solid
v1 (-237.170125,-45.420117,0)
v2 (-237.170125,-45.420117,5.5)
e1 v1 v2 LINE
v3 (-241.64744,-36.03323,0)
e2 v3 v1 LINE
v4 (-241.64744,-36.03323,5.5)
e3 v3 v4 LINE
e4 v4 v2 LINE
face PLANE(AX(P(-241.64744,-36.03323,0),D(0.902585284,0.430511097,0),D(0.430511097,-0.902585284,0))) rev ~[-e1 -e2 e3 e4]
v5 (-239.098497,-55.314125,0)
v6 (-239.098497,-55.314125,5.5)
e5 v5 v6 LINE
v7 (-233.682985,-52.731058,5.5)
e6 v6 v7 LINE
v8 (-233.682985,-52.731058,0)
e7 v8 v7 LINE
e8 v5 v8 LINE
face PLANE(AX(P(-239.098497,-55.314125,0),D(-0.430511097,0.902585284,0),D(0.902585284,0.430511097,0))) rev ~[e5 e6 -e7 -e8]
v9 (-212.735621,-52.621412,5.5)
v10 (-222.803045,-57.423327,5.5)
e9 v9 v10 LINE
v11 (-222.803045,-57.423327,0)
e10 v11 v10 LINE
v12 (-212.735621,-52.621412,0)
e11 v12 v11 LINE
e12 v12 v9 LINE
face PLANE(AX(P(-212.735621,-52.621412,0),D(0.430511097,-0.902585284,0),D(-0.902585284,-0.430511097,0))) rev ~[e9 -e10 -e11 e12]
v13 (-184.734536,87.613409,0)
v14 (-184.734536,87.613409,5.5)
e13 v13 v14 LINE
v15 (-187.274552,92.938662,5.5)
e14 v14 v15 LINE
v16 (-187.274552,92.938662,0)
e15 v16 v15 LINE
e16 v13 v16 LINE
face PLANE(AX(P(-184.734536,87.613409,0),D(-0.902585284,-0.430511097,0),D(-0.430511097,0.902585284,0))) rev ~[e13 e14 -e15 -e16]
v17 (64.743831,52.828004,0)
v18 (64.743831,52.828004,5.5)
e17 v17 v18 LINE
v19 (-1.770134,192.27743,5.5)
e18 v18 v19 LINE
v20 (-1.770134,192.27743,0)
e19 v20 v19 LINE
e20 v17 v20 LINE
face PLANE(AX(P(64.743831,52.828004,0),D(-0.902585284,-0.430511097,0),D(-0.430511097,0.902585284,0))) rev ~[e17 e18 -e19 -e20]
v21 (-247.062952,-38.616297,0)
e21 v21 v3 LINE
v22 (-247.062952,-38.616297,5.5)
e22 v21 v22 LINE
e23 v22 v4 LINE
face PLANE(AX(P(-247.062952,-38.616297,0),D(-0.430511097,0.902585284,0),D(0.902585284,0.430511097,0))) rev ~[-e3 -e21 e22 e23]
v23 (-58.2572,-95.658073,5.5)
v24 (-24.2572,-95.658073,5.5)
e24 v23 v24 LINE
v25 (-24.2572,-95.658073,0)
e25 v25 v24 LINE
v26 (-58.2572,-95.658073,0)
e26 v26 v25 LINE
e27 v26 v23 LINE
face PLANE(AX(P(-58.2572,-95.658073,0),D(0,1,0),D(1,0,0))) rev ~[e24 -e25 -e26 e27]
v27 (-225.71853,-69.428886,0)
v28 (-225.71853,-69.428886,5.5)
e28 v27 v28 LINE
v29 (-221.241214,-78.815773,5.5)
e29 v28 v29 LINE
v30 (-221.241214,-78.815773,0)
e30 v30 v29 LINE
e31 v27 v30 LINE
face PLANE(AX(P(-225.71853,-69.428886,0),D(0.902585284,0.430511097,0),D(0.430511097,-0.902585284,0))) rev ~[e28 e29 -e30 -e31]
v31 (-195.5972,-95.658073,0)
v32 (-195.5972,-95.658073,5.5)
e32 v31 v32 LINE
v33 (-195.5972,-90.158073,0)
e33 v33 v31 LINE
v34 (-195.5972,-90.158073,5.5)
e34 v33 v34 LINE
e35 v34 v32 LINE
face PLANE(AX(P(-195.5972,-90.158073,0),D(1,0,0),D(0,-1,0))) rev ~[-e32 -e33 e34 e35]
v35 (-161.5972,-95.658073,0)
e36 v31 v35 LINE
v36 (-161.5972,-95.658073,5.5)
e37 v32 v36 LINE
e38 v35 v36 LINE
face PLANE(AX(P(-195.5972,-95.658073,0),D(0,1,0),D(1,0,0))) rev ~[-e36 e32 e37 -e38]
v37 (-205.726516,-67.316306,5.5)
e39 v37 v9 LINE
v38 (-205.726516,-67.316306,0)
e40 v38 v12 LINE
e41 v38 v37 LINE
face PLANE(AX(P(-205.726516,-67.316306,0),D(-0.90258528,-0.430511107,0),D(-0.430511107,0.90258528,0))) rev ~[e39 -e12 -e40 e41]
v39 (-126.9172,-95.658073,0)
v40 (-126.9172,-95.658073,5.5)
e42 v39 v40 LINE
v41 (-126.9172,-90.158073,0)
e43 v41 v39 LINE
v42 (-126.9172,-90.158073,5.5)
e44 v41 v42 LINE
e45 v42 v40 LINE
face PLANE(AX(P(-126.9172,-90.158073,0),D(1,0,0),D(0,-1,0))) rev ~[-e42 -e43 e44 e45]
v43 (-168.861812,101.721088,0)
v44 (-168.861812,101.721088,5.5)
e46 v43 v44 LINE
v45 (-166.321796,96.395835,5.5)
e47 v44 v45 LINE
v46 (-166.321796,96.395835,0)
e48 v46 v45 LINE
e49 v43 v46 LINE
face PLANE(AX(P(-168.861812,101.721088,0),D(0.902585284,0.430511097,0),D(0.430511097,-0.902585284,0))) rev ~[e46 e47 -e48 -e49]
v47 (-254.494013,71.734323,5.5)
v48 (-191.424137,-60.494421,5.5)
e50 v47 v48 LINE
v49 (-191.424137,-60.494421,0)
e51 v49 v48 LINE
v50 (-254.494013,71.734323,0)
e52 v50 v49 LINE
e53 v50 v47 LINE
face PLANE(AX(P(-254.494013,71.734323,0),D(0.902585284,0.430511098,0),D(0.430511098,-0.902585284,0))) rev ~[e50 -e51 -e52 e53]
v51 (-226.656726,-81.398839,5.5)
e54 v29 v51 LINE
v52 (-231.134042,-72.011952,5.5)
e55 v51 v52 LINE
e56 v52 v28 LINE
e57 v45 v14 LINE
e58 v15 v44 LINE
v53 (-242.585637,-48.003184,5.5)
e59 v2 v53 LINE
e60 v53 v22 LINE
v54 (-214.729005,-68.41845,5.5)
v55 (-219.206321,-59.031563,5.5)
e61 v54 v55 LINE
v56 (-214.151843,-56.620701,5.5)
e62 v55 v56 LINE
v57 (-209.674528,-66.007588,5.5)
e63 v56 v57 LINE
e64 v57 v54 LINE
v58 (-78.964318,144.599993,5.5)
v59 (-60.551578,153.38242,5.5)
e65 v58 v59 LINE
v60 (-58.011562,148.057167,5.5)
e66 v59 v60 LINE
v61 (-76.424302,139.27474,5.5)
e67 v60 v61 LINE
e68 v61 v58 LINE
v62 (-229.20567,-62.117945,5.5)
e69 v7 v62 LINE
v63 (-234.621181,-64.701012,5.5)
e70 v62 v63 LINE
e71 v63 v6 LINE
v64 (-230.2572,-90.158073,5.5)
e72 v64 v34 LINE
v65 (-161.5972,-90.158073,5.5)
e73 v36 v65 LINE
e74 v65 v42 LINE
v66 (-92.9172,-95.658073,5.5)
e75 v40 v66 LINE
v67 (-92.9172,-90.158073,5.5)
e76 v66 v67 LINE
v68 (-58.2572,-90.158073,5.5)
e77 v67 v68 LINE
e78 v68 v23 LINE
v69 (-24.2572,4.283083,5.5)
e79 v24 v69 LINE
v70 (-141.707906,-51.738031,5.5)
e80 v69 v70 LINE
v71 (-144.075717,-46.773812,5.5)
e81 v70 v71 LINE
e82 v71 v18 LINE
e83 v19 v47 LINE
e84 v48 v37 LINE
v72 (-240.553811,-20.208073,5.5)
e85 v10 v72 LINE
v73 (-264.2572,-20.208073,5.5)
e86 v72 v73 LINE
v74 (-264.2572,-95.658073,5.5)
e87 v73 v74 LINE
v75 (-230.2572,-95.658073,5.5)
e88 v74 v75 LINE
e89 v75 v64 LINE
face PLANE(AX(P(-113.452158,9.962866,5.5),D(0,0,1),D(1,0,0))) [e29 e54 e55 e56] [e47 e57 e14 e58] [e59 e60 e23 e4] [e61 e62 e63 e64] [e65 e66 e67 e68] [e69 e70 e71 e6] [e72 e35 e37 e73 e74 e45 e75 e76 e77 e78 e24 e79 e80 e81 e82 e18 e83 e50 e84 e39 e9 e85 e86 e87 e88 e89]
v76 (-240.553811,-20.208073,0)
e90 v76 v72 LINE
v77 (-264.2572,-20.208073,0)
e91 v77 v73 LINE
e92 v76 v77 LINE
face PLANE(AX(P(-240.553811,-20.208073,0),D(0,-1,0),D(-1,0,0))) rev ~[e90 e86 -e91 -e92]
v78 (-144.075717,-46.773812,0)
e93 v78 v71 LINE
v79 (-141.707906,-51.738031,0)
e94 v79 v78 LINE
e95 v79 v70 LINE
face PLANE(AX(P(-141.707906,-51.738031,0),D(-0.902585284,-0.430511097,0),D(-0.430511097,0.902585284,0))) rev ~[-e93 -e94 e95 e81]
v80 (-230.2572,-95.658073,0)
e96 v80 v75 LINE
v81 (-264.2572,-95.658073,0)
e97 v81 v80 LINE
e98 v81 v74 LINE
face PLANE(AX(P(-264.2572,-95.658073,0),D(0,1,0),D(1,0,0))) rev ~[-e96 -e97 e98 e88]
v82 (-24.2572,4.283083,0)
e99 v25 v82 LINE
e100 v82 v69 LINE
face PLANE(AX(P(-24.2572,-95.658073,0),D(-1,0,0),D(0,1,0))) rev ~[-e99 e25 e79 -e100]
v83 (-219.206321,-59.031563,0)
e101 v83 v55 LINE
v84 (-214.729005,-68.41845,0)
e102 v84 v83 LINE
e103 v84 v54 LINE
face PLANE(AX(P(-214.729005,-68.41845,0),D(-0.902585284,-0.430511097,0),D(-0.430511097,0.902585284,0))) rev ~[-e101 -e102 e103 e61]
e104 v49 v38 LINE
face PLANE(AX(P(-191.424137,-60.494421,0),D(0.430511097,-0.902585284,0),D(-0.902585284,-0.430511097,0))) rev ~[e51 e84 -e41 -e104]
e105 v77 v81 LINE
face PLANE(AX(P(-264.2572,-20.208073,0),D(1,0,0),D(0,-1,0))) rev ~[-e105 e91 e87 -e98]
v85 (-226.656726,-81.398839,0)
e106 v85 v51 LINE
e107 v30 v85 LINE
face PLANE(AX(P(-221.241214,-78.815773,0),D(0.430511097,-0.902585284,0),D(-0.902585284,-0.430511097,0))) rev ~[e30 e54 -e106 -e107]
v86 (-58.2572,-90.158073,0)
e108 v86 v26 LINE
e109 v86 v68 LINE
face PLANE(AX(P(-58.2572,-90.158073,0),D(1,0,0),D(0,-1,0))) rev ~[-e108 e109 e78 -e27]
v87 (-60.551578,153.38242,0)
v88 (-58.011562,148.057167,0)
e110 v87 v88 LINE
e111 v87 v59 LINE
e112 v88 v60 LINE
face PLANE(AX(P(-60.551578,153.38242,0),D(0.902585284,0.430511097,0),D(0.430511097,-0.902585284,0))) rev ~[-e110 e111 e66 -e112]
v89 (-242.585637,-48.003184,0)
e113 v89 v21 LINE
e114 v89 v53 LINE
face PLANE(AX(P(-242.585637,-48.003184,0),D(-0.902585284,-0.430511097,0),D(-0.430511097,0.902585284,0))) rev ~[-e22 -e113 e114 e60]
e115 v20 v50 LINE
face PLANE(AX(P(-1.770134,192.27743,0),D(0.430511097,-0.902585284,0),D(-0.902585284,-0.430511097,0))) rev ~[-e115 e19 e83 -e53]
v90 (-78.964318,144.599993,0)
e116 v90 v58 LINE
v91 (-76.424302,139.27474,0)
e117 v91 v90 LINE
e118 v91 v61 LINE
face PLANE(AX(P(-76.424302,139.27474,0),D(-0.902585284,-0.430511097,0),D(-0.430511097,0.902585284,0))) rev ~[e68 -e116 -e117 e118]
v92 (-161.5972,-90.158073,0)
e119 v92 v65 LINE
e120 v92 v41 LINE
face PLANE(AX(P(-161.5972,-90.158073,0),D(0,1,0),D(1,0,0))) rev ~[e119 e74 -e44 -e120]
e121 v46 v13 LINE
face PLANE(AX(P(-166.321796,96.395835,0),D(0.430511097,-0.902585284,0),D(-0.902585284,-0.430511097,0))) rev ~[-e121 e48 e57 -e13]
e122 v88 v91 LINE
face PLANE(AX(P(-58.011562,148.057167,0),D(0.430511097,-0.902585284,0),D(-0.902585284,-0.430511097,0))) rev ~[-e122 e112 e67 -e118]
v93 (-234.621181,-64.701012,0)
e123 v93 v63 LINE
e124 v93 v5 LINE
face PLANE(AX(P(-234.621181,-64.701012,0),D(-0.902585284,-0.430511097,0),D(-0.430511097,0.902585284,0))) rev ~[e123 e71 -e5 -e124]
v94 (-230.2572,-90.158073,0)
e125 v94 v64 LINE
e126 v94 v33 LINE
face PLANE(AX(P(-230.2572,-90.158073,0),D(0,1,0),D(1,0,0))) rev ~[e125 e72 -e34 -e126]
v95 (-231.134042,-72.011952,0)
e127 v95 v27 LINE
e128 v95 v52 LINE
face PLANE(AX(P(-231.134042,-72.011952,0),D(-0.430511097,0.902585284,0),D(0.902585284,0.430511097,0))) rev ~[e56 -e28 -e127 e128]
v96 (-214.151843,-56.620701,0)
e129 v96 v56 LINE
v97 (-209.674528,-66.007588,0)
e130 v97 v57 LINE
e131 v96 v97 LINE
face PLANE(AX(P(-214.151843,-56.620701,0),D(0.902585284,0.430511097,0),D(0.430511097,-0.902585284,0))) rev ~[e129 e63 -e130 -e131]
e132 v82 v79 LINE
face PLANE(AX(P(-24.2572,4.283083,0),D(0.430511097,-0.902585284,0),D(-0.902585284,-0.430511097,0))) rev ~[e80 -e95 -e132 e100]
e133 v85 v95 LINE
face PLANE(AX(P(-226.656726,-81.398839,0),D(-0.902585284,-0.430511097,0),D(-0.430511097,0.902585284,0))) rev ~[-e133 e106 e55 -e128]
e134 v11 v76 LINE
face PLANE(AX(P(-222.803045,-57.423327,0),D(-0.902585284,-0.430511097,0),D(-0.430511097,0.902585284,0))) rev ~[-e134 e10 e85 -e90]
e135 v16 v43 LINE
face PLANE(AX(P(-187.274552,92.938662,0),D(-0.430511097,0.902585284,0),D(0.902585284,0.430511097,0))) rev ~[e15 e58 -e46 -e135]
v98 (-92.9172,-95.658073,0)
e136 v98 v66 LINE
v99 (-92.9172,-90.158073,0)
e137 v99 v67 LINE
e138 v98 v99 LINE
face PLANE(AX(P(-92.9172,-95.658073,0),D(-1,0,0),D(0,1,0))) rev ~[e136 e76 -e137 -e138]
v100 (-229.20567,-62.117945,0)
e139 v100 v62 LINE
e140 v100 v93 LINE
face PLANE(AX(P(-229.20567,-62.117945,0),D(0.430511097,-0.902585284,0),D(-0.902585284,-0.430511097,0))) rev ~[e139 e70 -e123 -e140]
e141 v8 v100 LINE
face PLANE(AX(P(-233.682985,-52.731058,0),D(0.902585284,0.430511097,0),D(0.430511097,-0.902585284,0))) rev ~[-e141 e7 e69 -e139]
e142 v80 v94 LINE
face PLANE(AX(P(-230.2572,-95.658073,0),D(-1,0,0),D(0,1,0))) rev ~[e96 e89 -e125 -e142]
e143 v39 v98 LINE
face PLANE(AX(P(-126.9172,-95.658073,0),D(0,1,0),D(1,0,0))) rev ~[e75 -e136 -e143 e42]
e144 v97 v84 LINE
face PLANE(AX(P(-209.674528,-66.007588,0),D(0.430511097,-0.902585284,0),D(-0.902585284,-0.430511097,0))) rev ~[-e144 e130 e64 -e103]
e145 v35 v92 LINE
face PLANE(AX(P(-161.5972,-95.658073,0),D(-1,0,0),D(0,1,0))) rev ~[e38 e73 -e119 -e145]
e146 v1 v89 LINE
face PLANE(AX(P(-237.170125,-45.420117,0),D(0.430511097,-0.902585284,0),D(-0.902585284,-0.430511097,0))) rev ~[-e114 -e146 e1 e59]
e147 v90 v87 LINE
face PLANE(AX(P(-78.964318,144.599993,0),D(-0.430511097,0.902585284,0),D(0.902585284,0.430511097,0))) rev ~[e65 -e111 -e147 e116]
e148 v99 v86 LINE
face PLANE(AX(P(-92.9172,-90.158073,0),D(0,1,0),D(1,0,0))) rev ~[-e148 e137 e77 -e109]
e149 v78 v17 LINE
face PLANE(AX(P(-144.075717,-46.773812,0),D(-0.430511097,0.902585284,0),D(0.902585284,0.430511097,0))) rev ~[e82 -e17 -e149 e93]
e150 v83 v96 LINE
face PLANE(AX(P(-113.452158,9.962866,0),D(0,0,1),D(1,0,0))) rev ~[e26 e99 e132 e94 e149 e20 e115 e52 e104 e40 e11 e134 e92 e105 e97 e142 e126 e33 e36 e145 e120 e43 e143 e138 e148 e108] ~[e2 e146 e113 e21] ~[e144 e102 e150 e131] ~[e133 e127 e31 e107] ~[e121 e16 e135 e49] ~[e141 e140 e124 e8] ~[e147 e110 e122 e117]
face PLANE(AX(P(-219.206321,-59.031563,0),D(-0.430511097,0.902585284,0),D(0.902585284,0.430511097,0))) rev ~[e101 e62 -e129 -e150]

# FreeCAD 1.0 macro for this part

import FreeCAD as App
import Part
import Sketcher
Q = App.Units.Quantity


def add_polygon(sketch, points):
    """Adds a closed chain of lines whose ends are joined by coincident constraints."""
    first, n = sketch.GeometryCount, len(points)
    for a, b in zip(points, points[1:] + points[:1]):
        sketch.addGeometry(Part.LineSegment(App.Vector(*a, 0), App.Vector(*b, 0)), False)
    for i in range(n):
        sketch.addConstraint(Sketcher.Constraint("Coincident", first + i, 2, first + (i + 1) % n, 1))

doc = App.newDocument("Part")
body = doc.addObject("PartDesign::Body", "Body")

# Sketch on XY plane
sketch1 = body.newObject("Sketcher::SketchObject", "Sketch")
sketch1.AttachmentSupport = (doc.getObject("XY_Plane"), [""])
sketch1.MapMode = "FlatFace"
add_polygon(sketch1, [(-264.2572, -95.658073), (-230.2572, -95.658073), (-230.2572, -90.158073), (-195.5972, -90.158073), (-195.5972, -95.658073), (-161.5972, -95.658073), (-161.5972, -90.158073), (-126.9172, -90.158073), (-126.9172, -95.658073), (-92.9172, -95.658073), (-92.9172, -90.158073), (-58.2572, -90.158073), (-58.2572, -95.658073), (-24.2572, -95.658073), (-24.2572, 4.283083), (-141.707906, -51.738031), (-144.075717, -46.773812), (64.743831, 52.828004), (-1.770134, 192.27743), (-254.494013, 71.734323), (-191.424137, -60.494421), (-205.726516, -67.316306), (-212.735621, -52.621412), (-222.803045, -57.423327), (-240.553811, -20.208073), (-264.2572, -20.208073)])  # lines 0-25
add_polygon(sketch1, [(-221.241214, -78.815773), (-226.656726, -81.398839), (-231.134042, -72.011952), (-225.71853, -69.428886)])  # lines 26-29
add_polygon(sketch1, [(-239.098497, -55.314125), (-233.682985, -52.731058), (-229.20567, -62.117945), (-234.621181, -64.701012)])  # lines 30-33
add_polygon(sketch1, [(-209.674528, -66.007588), (-214.729005, -68.41845), (-219.206321, -59.031563), (-214.151843, -56.620701)])  # lines 34-37
add_polygon(sketch1, [(-247.062952, -38.616297), (-241.64744, -36.03323), (-237.170125, -45.420117), (-242.585637, -48.003184)])  # lines 38-41
add_polygon(sketch1, [(-187.274552, 92.938662), (-168.861812, 101.721088), (-166.321796, 96.395835), (-184.734536, 87.613409)])  # lines 42-45
add_polygon(sketch1, [(-78.964318, 144.599993), (-60.551578, 153.38242), (-58.011562, 148.057167), (-76.424302, 139.27474)])  # lines 46-49
sketch1.addConstraint(Sketcher.Constraint("Horizontal", 0))
sketch1.addConstraint(Sketcher.Constraint("Vertical", 1))
sketch1.addConstraint(Sketcher.Constraint("Horizontal", 2))
sketch1.addConstraint(Sketcher.Constraint("Vertical", 3))
sketch1.addConstraint(Sketcher.Constraint("Horizontal", 4))
sketch1.addConstraint(Sketcher.Constraint("Vertical", 5))
sketch1.addConstraint(Sketcher.Constraint("Horizontal", 6))
sketch1.addConstraint(Sketcher.Constraint("Vertical", 7))
sketch1.addConstraint(Sketcher.Constraint("Horizontal", 8))
sketch1.addConstraint(Sketcher.Constraint("Vertical", 9))
sketch1.addConstraint(Sketcher.Constraint("Horizontal", 10))
sketch1.addConstraint(Sketcher.Constraint("Vertical", 11))
sketch1.addConstraint(Sketcher.Constraint("Horizontal", 12))
sketch1.addConstraint(Sketcher.Constraint("Vertical", 13))
sketch1.addConstraint(Sketcher.Constraint("Horizontal", 24))
sketch1.addConstraint(Sketcher.Constraint("Vertical", 25))
sketch1.addConstraint(Sketcher.Constraint("Perpendicular", 14, 15))
sketch1.addConstraint(Sketcher.Constraint("Perpendicular", 15, 16))
sketch1.addConstraint(Sketcher.Constraint("Perpendicular", 16, 17))
sketch1.addConstraint(Sketcher.Constraint("Perpendicular", 17, 18))
sketch1.addConstraint(Sketcher.Constraint("Perpendicular", 18, 19))
sketch1.addConstraint(Sketcher.Constraint("Perpendicular", 19, 20))
sketch1.addConstraint(Sketcher.Constraint("Perpendicular", 20, 21))
sketch1.addConstraint(Sketcher.Constraint("Perpendicular", 21, 22))
sketch1.addConstraint(Sketcher.Constraint("Perpendicular", 22, 23))
sketch1.addConstraint(Sketcher.Constraint("Perpendicular", 23, 26))
sketch1.addConstraint(Sketcher.Constraint("Perpendicular", 26, 27))
sketch1.addConstraint(Sketcher.Constraint("Perpendicular", 27, 28))
sketch1.addConstraint(Sketcher.Constraint("Perpendicular", 28, 29))
sketch1.addConstraint(Sketcher.Constraint("Perpendicular", 29, 30))
sketch1.addConstraint(Sketcher.Constraint("Perpendicular", 30, 31))
sketch1.addConstraint(Sketcher.Constraint("Perpendicular", 31, 32))
sketch1.addConstraint(Sketcher.Constraint("Perpendicular", 32, 33))
sketch1.addConstraint(Sketcher.Constraint("Perpendicular", 33, 34))
sketch1.addConstraint(Sketcher.Constraint("Perpendicular", 34, 35))
sketch1.addConstraint(Sketcher.Constraint("Perpendicular", 35, 36))
sketch1.addConstraint(Sketcher.Constraint("Perpendicular", 36, 37))
sketch1.addConstraint(Sketcher.Constraint("Perpendicular", 37, 38))
sketch1.addConstraint(Sketcher.Constraint("Perpendicular", 38, 39))
sketch1.addConstraint(Sketcher.Constraint("Perpendicular", 39, 40))
sketch1.addConstraint(Sketcher.Constraint("Perpendicular", 40, 41))
sketch1.addConstraint(Sketcher.Constraint("Perpendicular", 41, 42))
sketch1.addConstraint(Sketcher.Constraint("Perpendicular", 42, 43))
sketch1.addConstraint(Sketcher.Constraint("Perpendicular", 43, 44))
sketch1.addConstraint(Sketcher.Constraint("Perpendicular", 44, 45))
sketch1.addConstraint(Sketcher.Constraint("Perpendicular", 45, 46))
sketch1.addConstraint(Sketcher.Constraint("Perpendicular", 46, 47))
sketch1.addConstraint(Sketcher.Constraint("Perpendicular", 47, 48))
sketch1.addConstraint(Sketcher.Constraint("Perpendicular", 48, 49))
sketch1.addConstraint(Sketcher.Constraint("Horizontal", 0, 2, 3, 2))
sketch1.addConstraint(Sketcher.Constraint("Horizontal", 2, 2, 5, 2))
sketch1.addConstraint(Sketcher.Constraint("Horizontal", 4, 2, 7, 2))
sketch1.addConstraint(Sketcher.Constraint("Horizontal", 6, 2, 9, 2))
sketch1.addConstraint(Sketcher.Constraint("Horizontal", 8, 2, 11, 2))
sketch1.addConstraint(Sketcher.Constraint("Equal", 0, 4))
sketch1.addConstraint(Sketcher.Constraint("Equal", 4, 8))
sketch1.addConstraint(Sketcher.Constraint("Equal", 2, 10))
sketch1.addConstraint(Sketcher.Constraint("Equal", 8, 12))
sketch1.addConstraint(Sketcher.Constraint("Equal", 28, 30))
sketch1.addConstraint(Sketcher.Constraint("Equal", 29, 31))
sketch1.addConstraint(Sketcher.Constraint("Equal", 33, 35))
sketch1.addConstraint(Sketcher.Constraint("Equal", 32, 38))
sketch1.addConstraint(Sketcher.Constraint("Equal", 37, 39))
sketch1.addConstraint(Sketcher.Constraint("Equal", 44, 46))
sketch1.addConstraint(Sketcher.Constraint("Equal", 45, 47))
sketch1.addConstraint(Sketcher.Constraint("DistanceX", 0, 1, 0, 2, Q("34 mm")))
sketch1.addConstraint(Sketcher.Constraint("Distance", 18, Q("280 mm")))
sketch1.addConstraint(Sketcher.Constraint("Distance", 26, Q("6 mm")))
sketch1.addConstraint(Sketcher.Constraint("DistanceY", 1, 1, 1, 2, Q("5.5 mm")))
sketch1.addConstraint(Sketcher.Constraint("Angle", 14, Q("-154.5 deg")))
sketch1.addConstraint(Sketcher.Constraint("Distance", 15, Q("5.5 mm")))
sketch1.addConstraint(Sketcher.Constraint("Distance", 17, Q("154.5 mm")))
sketch1.addConstraint(Sketcher.Constraint("Distance", 19, Q("146.5 mm")))
sketch1.addConstraint(Sketcher.Constraint("Distance", 27, Q("10.4 mm")))
sketch1.addConstraint(Sketcher.Constraint("Distance", 34, Q("5.6 mm")))
sketch1.addConstraint(Sketcher.Constraint("Distance", 42, Q("20.4 mm")))
sketch1.addConstraint(Sketcher.Constraint("Distance", 43, Q("5.9 mm")))
sketch1.addConstraint(Sketcher.Constraint("DistanceX", 2, 1, 2, 2, Q("34.66 mm")))
sketch1.addConstraint(Sketcher.Constraint("DistanceX", 6, 1, 6, 2, Q("34.68 mm")))
sketch1.addConstraint(Sketcher.Constraint("DistanceY", 25, 2, 25, 1, Q("75.45 mm")))
sketch1.addConstraint(Sketcher.Constraint("DistanceX", 23, 2, 42, 2, Q("71.691999 mm")))
sketch1.addConstraint(Sketcher.Constraint("DistanceX", 24, 2, 24, 1, Q("23.70339 mm")))
sketch1.addConstraint(Sketcher.Constraint("DistanceX", 0, 2, -1, 1, Q("230.2572 mm")))
sketch1.addConstraint(Sketcher.Constraint("DistanceY", 36, 2, -1, 1, Q("56.620701 mm")))
sketch1.addConstraint(Sketcher.Constraint("DistanceY", 1, 2, 29, 2, Q("11.3423 mm")))
sketch1.addConstraint(Sketcher.Constraint("DistanceX", 35, 2, 21, 2, Q("6.4707 mm")))
sketch1.addConstraint(Sketcher.Constraint("DistanceX", 22, 2, 36, 2, Q("8.651202 mm")))
sketch1.addConstraint(Sketcher.Constraint("DistanceX", 18, 2, 42, 2, Q("85.632201 mm")))
sketch1.addConstraint(Sketcher.Constraint("DistanceY", 15, 2, 42, 2, Q("148.4949 mm")))
sketch1.addConstraint(Sketcher.Constraint("Distance", 14, Q("130.12699 mm")))
sketch1.addConstraint(Sketcher.Constraint("DistanceY", 13, 1, 13, 2, Q("99.941155 mm")))
sketch1.addConstraint(Sketcher.Constraint("DistanceY", 14, 2, -1, 1, Q("51.738031 mm")))
sketch1.addConstraint(Sketcher.Constraint("DistanceX", 21, 2, -1, 1, Q("212.735621 mm")))
sketch1.addConstraint(Sketcher.Constraint("DistanceX", 27, 2, -1, 1, Q("231.134042 mm")))
sketch1.addConstraint(Sketcher.Constraint("DistanceY", 30, 2, -1, 1, Q("52.731058 mm")))
sketch1.addConstraint(Sketcher.Constraint("DistanceX", 31, 2, -1, 1, Q("229.20567 mm")))
sketch1.addConstraint(Sketcher.Constraint("DistanceX", 38, 2, -1, 1, Q("241.64744 mm")))
sketch1.addConstraint(Sketcher.Constraint("DistanceY", 38, 2, -1, 1, Q("36.03323 mm")))
sketch1.addConstraint(Sketcher.Constraint("DistanceY", -1, 1, 46, 2, Q("153.38242 mm")))
sketch1.addConstraint(Sketcher.Constraint("DistanceX", 43, 2, 46, 2, Q("105.770219 mm")))
pad1 = body.newObject("PartDesign::Pad", "Pad")
pad1.Profile = sketch1
pad1.Length = 5.5

doc.recompute()
